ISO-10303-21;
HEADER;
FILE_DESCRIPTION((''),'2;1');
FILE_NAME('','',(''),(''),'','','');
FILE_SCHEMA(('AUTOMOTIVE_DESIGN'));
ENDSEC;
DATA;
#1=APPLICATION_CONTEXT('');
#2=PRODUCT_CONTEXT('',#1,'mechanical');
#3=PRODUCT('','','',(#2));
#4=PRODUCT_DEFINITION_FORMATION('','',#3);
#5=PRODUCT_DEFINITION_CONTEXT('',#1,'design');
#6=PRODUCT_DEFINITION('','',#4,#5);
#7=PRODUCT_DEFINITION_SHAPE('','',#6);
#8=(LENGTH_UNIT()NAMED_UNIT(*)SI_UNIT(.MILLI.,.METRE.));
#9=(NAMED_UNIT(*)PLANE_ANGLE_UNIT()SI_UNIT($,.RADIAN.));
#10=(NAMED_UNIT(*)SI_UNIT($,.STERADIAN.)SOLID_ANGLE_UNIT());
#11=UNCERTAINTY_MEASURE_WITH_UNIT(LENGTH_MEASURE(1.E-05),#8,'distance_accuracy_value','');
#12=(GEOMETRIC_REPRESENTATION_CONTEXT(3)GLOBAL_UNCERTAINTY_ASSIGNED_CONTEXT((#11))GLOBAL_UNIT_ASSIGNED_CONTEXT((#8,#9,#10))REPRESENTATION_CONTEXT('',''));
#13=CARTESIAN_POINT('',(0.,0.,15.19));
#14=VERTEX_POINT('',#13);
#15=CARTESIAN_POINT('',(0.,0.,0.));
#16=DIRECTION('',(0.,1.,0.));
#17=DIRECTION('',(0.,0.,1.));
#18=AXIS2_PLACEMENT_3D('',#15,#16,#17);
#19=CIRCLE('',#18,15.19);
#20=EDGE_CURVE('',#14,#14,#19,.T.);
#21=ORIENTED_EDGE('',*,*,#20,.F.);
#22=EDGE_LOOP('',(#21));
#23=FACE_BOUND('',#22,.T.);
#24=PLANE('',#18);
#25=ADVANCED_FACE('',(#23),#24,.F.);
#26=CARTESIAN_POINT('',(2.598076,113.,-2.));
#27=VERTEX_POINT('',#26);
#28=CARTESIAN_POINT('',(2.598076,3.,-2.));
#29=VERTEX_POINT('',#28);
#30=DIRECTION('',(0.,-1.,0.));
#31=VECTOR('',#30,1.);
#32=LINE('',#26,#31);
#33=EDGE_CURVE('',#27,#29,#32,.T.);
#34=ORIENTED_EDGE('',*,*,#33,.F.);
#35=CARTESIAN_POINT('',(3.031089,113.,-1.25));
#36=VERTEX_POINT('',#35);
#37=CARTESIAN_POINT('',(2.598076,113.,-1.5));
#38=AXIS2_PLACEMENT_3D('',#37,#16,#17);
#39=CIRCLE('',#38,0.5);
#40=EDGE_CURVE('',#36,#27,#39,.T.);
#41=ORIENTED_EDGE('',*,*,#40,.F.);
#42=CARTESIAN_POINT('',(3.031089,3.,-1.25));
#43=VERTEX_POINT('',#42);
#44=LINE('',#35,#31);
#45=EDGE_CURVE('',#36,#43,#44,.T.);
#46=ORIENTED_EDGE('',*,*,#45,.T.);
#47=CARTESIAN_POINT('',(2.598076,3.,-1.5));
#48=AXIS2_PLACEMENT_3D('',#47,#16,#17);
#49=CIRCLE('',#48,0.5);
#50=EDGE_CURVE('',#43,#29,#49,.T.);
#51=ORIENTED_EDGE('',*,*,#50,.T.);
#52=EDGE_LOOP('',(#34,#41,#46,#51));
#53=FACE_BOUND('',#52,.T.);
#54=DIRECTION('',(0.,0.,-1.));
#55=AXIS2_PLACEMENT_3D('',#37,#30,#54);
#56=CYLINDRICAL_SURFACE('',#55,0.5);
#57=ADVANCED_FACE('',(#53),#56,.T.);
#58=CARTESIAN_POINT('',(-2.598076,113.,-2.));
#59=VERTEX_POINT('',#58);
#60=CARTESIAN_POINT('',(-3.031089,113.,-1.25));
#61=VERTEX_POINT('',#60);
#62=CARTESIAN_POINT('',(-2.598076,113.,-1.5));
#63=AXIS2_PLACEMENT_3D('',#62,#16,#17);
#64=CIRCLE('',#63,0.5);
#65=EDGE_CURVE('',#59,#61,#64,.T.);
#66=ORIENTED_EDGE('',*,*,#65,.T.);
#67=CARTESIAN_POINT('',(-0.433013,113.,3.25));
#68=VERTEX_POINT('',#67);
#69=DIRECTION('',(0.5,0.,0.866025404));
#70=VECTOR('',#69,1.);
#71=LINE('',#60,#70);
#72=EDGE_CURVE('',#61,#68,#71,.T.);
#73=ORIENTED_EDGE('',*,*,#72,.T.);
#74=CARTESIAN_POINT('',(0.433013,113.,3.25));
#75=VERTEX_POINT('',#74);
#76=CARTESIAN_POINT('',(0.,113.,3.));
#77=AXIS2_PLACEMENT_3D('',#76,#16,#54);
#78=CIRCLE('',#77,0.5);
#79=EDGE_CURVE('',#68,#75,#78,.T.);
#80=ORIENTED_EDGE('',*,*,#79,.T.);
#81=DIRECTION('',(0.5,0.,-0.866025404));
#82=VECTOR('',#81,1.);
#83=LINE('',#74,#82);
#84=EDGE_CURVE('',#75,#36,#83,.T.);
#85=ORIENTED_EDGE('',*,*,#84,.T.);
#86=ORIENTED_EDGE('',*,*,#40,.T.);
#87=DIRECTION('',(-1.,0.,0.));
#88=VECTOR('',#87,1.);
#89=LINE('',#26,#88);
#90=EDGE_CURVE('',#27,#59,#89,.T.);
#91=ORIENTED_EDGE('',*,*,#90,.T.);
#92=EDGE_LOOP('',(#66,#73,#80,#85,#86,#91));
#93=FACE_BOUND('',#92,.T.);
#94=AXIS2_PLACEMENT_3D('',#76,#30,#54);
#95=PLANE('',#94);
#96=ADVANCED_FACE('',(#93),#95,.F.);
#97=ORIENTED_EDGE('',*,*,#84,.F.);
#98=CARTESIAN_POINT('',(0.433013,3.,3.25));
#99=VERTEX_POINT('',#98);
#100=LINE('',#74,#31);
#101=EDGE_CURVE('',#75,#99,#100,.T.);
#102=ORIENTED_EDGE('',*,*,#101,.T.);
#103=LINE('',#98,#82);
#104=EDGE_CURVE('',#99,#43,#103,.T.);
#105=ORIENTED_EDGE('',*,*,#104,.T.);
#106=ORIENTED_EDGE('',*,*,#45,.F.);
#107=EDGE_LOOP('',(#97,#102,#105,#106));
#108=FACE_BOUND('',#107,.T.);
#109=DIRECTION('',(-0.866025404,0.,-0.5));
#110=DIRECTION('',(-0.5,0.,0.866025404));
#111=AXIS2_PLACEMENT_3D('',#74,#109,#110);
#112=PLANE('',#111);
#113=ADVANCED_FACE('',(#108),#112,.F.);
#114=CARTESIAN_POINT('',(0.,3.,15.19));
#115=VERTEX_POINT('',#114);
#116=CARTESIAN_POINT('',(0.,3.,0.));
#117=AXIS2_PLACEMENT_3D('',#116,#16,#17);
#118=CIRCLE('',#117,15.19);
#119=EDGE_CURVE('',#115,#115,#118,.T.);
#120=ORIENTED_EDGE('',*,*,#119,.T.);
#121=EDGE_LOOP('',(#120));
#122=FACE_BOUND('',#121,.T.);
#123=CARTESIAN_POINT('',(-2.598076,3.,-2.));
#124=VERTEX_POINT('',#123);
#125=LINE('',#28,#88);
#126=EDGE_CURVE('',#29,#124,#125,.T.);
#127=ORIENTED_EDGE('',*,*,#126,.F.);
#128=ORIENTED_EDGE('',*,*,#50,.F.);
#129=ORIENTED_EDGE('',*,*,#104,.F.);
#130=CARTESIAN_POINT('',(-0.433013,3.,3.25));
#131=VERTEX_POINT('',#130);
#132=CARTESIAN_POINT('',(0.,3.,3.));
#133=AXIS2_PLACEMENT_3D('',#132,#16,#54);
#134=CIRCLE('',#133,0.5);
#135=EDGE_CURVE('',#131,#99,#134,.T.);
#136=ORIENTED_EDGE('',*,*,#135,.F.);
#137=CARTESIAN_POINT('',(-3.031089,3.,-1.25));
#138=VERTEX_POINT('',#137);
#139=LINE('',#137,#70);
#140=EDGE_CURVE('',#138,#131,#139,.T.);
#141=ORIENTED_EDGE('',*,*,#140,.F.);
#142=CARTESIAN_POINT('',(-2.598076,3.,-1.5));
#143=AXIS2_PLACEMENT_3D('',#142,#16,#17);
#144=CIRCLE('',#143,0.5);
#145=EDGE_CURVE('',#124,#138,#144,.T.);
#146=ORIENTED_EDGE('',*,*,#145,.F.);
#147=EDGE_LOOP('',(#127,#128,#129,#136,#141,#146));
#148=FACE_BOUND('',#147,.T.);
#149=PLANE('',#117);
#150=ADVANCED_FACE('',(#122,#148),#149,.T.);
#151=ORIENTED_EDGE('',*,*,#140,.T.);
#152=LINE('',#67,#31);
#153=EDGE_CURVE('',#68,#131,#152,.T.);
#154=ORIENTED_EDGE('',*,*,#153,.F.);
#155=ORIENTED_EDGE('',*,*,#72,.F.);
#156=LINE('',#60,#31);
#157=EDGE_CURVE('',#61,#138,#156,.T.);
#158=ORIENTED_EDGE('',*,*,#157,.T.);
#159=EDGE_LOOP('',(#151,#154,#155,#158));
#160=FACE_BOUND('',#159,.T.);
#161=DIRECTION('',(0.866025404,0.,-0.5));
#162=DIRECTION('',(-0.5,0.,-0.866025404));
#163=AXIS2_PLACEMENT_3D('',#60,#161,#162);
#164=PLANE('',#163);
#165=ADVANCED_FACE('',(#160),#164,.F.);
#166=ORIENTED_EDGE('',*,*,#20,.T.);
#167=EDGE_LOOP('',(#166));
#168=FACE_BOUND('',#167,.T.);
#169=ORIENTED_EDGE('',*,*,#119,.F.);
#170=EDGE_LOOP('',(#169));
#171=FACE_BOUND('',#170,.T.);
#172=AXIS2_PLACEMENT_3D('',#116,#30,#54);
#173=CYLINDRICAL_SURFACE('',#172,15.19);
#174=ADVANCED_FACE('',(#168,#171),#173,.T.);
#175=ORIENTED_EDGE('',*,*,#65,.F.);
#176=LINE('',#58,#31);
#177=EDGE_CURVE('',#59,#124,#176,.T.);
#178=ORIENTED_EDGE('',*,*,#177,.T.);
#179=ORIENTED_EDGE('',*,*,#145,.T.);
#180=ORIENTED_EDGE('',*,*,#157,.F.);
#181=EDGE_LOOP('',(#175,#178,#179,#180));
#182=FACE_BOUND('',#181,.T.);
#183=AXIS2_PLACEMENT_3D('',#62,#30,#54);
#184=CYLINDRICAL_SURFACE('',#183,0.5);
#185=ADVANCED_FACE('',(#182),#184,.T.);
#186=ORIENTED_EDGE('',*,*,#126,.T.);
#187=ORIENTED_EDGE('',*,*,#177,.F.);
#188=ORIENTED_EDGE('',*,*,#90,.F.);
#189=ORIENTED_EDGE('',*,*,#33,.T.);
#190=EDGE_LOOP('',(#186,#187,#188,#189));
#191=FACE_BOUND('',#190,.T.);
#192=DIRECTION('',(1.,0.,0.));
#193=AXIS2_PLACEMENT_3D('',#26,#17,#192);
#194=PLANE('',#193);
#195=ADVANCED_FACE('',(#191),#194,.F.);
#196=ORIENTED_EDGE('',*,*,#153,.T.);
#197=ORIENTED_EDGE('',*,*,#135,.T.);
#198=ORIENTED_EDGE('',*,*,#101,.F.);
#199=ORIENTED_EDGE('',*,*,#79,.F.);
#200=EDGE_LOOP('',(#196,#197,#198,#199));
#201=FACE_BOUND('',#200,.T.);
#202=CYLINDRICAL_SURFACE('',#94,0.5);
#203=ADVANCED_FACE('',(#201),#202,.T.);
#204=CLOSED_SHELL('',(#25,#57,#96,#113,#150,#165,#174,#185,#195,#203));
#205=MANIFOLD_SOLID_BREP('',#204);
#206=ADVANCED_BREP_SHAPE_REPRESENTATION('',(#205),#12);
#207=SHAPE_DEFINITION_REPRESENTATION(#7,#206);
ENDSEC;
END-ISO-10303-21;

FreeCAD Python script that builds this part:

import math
import FreeCAD as App
import Part
import Sketcher
from FreeCAD import Vector
Q = App.Units.Quantity

doc = App.newDocument("Part")
body = doc.addObject("PartDesign::Body", "Body")

sketch1 = doc.addObject("Sketcher::SketchObject", "Sketch")
body.addObject(sketch1)
sketch1.AttachmentSupport = (doc.XZ_Plane, [""])
sketch1.MapMode = "FlatFace"
sketch1.addGeometry(Part.Circle(Vector(0, 0, 0), Vector(0, 0, 1), 15), False)
sketch1.addConstraint(Sketcher.Constraint("Coincident", 0, 3, -1, 1))
sketch1.addConstraint(Sketcher.Constraint("Diameter", 0, 30.38))
pad1 = doc.addObject("PartDesign::Pad", "Pad")
body.addObject(pad1)
pad1.Profile = sketch1
pad1.Length = 3
pad1.Reversed = True

sketch2 = doc.addObject("Sketcher::SketchObject", "Sketch001")
body.addObject(sketch2)
sketch2.AttachmentSupport = (doc.XZ_Plane, [""])
sketch2.MapMode = "FlatFace"
sketch2.AttachmentOffset = App.Placement(Vector(0, 0, -3), App.Rotation())
sketch2.addGeometry(Part.LineSegment(Vector(0.4, 3.2, 0), Vector(3, -1.2, 0)), False)
sketch2.addGeometry(Part.ArcOfCircle(Part.Circle(Vector(2.6, -1.5, 0), Vector(0, 0, 1), 0.5), math.radians(-90), math.radians(30)), False)
sketch2.addGeometry(Part.LineSegment(Vector(2.6, -2, 0), Vector(-2.6, -2, 0)), False)
sketch2.addGeometry(Part.ArcOfCircle(Part.Circle(Vector(-2.6, -1.5, 0), Vector(0, 0, 1), 0.5), math.radians(150), math.radians(270)), False)
sketch2.addGeometry(Part.LineSegment(Vector(-3, -1.2, 0), Vector(-0.4, 3.2, 0)), False)
sketch2.addGeometry(Part.ArcOfCircle(Part.Circle(Vector(0, 3, 0), Vector(0, 0, 1), 0.5), math.radians(30), math.radians(150)), False)
sketch2.addConstraint(Sketcher.Constraint("Tangent", 0, 2, 1, 2))
sketch2.addConstraint(Sketcher.Constraint("Tangent", 1, 1, 2, 1))
sketch2.addConstraint(Sketcher.Constraint("Tangent", 2, 2, 3, 2))
sketch2.addConstraint(Sketcher.Constraint("Tangent", 3, 1, 4, 1))
sketch2.addConstraint(Sketcher.Constraint("Tangent", 4, 2, 5, 2))
sketch2.addConstraint(Sketcher.Constraint("Tangent", 5, 1, 0, 1))
sketch2.addConstraint(Sketcher.Constraint("Horizontal", 2))
sketch2.addConstraint(Sketcher.Constraint("Equal", 1, 3))
sketch2.addConstraint(Sketcher.Constraint("Equal", 3, 5))
sketch2.addConstraint(Sketcher.Constraint("Symmetric", 0, 2, 3, 1, -2))
sketch2.addConstraint(Sketcher.Constraint("Radius", 1, 0.5))
sketch2.addConstraint(Sketcher.Constraint("Angle", 0, Q("-60 deg")))
sketch2.addConstraint(Sketcher.Constraint("DistanceY", -1, 1, 5, 3, 3.0))
sketch2.addConstraint(Sketcher.Constraint("DistanceY", 1, 1, -1, 1, 2.0))
pad2 = doc.addObject("PartDesign::Pad", "Pad001")
body.addObject(pad2)
pad2.Profile = sketch2
pad2.Length = 110
pad2.Reversed = True

doc.recompute()
